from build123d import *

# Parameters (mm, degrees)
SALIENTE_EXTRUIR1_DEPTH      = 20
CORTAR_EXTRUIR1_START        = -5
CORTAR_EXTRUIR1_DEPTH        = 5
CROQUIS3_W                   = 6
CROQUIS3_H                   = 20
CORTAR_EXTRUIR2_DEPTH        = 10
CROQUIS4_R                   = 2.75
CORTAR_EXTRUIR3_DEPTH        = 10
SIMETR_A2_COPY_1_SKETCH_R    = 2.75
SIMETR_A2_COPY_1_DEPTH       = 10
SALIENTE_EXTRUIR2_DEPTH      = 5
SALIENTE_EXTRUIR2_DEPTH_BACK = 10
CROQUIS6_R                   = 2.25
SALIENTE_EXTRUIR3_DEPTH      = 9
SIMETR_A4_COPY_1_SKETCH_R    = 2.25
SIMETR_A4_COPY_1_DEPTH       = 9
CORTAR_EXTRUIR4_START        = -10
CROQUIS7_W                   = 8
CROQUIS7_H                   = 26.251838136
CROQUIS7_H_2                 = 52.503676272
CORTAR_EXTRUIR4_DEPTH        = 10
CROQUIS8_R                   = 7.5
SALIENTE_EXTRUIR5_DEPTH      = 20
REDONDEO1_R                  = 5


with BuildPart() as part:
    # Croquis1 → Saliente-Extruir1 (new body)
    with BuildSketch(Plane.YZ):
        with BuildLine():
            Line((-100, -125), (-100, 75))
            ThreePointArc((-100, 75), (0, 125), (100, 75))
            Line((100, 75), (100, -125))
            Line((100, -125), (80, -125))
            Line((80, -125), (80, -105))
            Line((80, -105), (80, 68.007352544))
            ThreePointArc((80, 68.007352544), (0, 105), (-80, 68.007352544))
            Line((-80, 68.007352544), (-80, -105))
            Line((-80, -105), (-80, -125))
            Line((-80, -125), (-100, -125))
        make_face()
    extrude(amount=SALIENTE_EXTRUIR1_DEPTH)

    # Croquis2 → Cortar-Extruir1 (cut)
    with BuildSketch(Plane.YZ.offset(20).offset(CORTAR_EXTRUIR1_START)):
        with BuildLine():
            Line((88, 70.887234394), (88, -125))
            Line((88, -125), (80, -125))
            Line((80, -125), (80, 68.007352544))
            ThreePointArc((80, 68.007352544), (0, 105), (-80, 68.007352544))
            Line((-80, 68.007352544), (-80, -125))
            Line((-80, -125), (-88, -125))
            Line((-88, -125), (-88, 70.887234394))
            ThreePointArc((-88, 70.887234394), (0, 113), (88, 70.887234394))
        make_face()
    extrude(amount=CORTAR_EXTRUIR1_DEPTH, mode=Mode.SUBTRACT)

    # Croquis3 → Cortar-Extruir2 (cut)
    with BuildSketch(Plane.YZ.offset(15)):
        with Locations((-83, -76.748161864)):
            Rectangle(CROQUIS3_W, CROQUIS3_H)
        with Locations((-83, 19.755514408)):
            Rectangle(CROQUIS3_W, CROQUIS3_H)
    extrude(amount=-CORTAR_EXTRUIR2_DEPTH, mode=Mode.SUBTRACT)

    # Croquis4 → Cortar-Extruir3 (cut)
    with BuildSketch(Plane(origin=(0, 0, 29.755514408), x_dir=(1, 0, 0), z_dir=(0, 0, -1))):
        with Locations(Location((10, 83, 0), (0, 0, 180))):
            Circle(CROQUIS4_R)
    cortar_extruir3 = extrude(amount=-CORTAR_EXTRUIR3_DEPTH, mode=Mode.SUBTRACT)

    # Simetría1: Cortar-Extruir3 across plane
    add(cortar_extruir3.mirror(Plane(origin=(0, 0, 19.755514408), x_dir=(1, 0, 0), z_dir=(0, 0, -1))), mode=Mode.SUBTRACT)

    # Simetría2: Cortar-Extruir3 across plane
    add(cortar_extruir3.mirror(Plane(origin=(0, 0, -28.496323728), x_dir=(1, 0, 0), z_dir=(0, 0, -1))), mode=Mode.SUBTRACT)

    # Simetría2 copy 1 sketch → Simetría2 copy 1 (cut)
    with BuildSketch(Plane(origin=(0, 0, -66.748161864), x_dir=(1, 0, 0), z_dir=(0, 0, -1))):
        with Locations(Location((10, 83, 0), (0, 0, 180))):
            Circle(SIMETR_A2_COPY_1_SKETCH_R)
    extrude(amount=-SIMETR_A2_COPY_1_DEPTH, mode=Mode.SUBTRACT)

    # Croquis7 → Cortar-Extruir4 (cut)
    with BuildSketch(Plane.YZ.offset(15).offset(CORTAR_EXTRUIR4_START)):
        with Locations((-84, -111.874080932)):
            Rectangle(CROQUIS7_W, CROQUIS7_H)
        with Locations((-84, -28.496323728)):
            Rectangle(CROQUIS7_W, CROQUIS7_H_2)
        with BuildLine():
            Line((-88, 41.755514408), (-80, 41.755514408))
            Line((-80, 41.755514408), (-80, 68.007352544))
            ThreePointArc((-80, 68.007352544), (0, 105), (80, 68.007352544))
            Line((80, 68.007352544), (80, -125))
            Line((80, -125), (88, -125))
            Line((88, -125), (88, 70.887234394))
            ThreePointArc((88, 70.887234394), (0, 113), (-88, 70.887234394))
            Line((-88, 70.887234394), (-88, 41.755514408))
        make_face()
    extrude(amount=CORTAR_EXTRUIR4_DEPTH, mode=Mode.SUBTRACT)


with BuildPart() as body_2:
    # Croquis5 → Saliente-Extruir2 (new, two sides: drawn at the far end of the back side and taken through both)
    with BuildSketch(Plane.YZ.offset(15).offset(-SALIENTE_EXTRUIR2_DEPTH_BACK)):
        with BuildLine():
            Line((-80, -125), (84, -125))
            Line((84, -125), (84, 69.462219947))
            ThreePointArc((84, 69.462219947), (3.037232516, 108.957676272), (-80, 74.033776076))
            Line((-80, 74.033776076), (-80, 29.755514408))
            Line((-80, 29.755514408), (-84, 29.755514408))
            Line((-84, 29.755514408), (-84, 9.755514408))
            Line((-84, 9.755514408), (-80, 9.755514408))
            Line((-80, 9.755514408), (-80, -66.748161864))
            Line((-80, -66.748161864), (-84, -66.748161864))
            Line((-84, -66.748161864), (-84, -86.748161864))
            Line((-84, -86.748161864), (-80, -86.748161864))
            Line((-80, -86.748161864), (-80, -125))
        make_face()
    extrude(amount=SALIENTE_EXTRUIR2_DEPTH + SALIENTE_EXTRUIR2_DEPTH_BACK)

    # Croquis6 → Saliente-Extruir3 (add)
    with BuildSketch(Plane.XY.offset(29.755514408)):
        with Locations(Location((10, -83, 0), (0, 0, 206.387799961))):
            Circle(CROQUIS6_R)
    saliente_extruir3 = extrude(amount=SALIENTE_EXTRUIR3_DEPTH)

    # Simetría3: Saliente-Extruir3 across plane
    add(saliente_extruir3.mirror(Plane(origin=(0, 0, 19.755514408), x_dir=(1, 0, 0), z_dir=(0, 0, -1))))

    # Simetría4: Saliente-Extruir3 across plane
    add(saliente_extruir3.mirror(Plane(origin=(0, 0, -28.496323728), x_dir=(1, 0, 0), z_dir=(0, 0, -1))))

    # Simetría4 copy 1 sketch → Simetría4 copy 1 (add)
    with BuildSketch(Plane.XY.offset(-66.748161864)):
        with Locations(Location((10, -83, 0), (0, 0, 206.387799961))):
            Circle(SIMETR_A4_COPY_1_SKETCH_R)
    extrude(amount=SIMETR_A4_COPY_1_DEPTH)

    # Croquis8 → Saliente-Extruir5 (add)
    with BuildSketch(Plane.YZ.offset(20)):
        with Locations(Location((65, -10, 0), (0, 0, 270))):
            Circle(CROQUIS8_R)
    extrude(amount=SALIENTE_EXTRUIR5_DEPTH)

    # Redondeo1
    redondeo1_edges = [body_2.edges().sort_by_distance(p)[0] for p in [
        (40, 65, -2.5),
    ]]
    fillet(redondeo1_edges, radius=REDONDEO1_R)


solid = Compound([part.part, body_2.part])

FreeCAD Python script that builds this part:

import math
import FreeCAD as App
import Part
import Sketcher

V = App.Vector
Q = App.Units.Quantity


def edges_at(feature, points):
    """Names of the edges that pass closest to the given points."""
    edges = feature.Shape.Edges
    near = lambda p: min(range(len(edges)), key=lambda i: edges[i].distToShape(Part.Vertex(*p))[0])
    return sorted({f"Edge{near(p) + 1}" for p in points})

doc = App.newDocument("Part")
body = doc.addObject("PartDesign::Body", "Body")

sketch1 = body.newObject("Sketcher::SketchObject", "Sketch")
sketch1.AttachmentSupport = (doc.getObject("YZ_Plane"), [""])
sketch1.MapMode = "FlatFace"
sketch1.addGeometry([
    Part.LineSegment(V(-100, 75, 0), V(-100, -125, 0)),
    Part.LineSegment(V(-100, -125, 0), V(-80, -125, 0)),
    Part.LineSegment(V(-80, -125, 0), V(-80, 68, 0)),
    Part.ArcOfCircle(Part.Circle(V(0, 0, 0), V(0, 0, 1), 105), math.radians(40), math.radians(140)),
    Part.LineSegment(V(80, 68, 0), V(80, -125, 0)),
    Part.LineSegment(V(80, -125, 0), V(100, -125, 0)),
    Part.LineSegment(V(100, -125, 0), V(100, 75, 0)),
    Part.ArcOfCircle(Part.Circle(V(0, 0, 0), V(0, 0, 1), 125), math.radians(37), math.radians(143)),
], False)
sketch1.addConstraint([
    Sketcher.Constraint("Coincident", 0, 2, 1, 1),
    Sketcher.Constraint("Coincident", 1, 2, 2, 1),
    Sketcher.Constraint("Coincident", 2, 2, 3, 2),
    Sketcher.Constraint("Coincident", 3, 1, 4, 1),
    Sketcher.Constraint("Coincident", 4, 2, 5, 1),
    Sketcher.Constraint("Coincident", 5, 2, 6, 1),
    Sketcher.Constraint("Coincident", 6, 2, 7, 1),
    Sketcher.Constraint("Coincident", 7, 2, 0, 1),
    Sketcher.Constraint("Vertical", 0),
    Sketcher.Constraint("Horizontal", 1),
    Sketcher.Constraint("Vertical", 2),
    Sketcher.Constraint("Vertical", 4),
    Sketcher.Constraint("Horizontal", 5),
    Sketcher.Constraint("Vertical", 6),
    Sketcher.Constraint("Coincident", 3, 3, -1, 1),
    Sketcher.Constraint("Coincident", 7, 3, -1, 1),
    Sketcher.Constraint("Symmetric", 1, 2, 4, 2, -2),
    Sketcher.Constraint("Horizontal", 6, 2, 7, 2),
    Sketcher.Constraint("Radius", 3, Q("105 mm")),
    Sketcher.Constraint("Radius", 7, Q("125 mm")),
    Sketcher.Constraint("DistanceX", 1, 1, 1, 2, Q("20 mm")),
    Sketcher.Constraint("DistanceY", 0, 2, 0, 1, Q("200 mm")),
    Sketcher.Constraint("DistanceX", 0, 2, -1, 1, Q("100 mm")),
])
pad1 = body.newObject("PartDesign::Pad", "Pad")
pad1.Profile = sketch1
pad1.Length = 20

sketch2 = body.newObject("Sketcher::SketchObject", "Sketch001")
sketch2.AttachmentSupport = (doc.getObject("YZ_Plane"), [""])
sketch2.MapMode = "FlatFace"
sketch2.AttachmentOffset = App.Placement(V(0, 0, 15), App.Rotation())
sketch2.addGeometry([
    Part.LineSegment(V(88, -125, 0), V(88, 71, 0)),
    Part.ArcOfCircle(Part.Circle(V(0, 0, 0), V(0, 0, 1), 113), math.radians(39), math.radians(141)),
    Part.LineSegment(V(-88, 71, 0), V(-88, -125, 0)),
    Part.LineSegment(V(-88, -125, 0), V(-80, -125, 0)),
    Part.LineSegment(V(-80, -125, 0), V(-80, 68, 0)),
    Part.ArcOfCircle(Part.Circle(V(0, 0, 0), V(0, 0, 1), 105), math.radians(40), math.radians(140)),
    Part.LineSegment(V(80, 68, 0), V(80, -125, 0)),
    Part.LineSegment(V(80, -125, 0), V(88, -125, 0)),
], False)
sketch2.addConstraint([
    Sketcher.Constraint("Coincident", 0, 2, 1, 1),
    Sketcher.Constraint("Coincident", 1, 2, 2, 1),
    Sketcher.Constraint("Coincident", 2, 2, 3, 1),
    Sketcher.Constraint("Coincident", 3, 2, 4, 1),
    Sketcher.Constraint("Coincident", 4, 2, 5, 2),
    Sketcher.Constraint("Coincident", 5, 1, 6, 1),
    Sketcher.Constraint("Coincident", 6, 2, 7, 1),
    Sketcher.Constraint("Coincident", 7, 2, 0, 1),
    Sketcher.Constraint("Vertical", 0),
    Sketcher.Constraint("Vertical", 2),
    Sketcher.Constraint("Horizontal", 3),
    Sketcher.Constraint("Vertical", 4),
    Sketcher.Constraint("Vertical", 6),
    Sketcher.Constraint("Horizontal", 7),
    Sketcher.Constraint("Coincident", 1, 3, -1, 1),
    Sketcher.Constraint("Coincident", 5, 3, -1, 1),
    Sketcher.Constraint("Symmetric", 3, 2, 6, 2, -2),
    Sketcher.Constraint("Horizontal", 0, 2, 1, 2),
    Sketcher.Constraint("Radius", 1, Q("113 mm")),
    Sketcher.Constraint("Radius", 5, Q("105 mm")),
    Sketcher.Constraint("DistanceX", 3, 1, 3, 2, Q("8 mm")),
    Sketcher.Constraint("DistanceX", -1, 1, 0, 2, Q("88 mm")),
    Sketcher.Constraint("DistanceY", 2, 2, -1, 1, Q("125 mm")),
])
pocket1 = body.newObject("PartDesign::Pocket", "Pocket")
pocket1.Profile = sketch2
pocket1.Length = 5
pocket1.Reversed = True

sketch3 = body.newObject("Sketcher::SketchObject", "Sketch002")
sketch3.AttachmentSupport = (doc.getObject("YZ_Plane"), [""])
sketch3.MapMode = "FlatFace"
sketch3.AttachmentOffset = App.Placement(V(0, 0, 15), App.Rotation())
sketch3.addGeometry([
    Part.LineSegment(V(-86, -67, 0), V(-86, -87, 0)),
    Part.LineSegment(V(-86, -87, 0), V(-80, -87, 0)),
    Part.LineSegment(V(-80, -87, 0), V(-80, -67, 0)),
    Part.LineSegment(V(-80, -67, 0), V(-86, -67, 0)),
    Part.LineSegment(V(-86, 30, 0), V(-86, 10, 0)),
    Part.LineSegment(V(-86, 10, 0), V(-80, 10, 0)),
    Part.LineSegment(V(-80, 10, 0), V(-80, 30, 0)),
    Part.LineSegment(V(-80, 30, 0), V(-86, 30, 0)),
], False)
sketch3.addConstraint([
    Sketcher.Constraint("Coincident", 0, 2, 1, 1),
    Sketcher.Constraint("Coincident", 1, 2, 2, 1),
    Sketcher.Constraint("Coincident", 2, 2, 3, 1),
    Sketcher.Constraint("Coincident", 3, 2, 0, 1),
    Sketcher.Constraint("Coincident", 4, 2, 5, 1),
    Sketcher.Constraint("Coincident", 5, 2, 6, 1),
    Sketcher.Constraint("Coincident", 6, 2, 7, 1),
    Sketcher.Constraint("Coincident", 7, 2, 4, 1),
    Sketcher.Constraint("Vertical", 0),
    Sketcher.Constraint("Horizontal", 1),
    Sketcher.Constraint("Vertical", 2),
    Sketcher.Constraint("Horizontal", 3),
    Sketcher.Constraint("Vertical", 4),
    Sketcher.Constraint("Horizontal", 5),
    Sketcher.Constraint("Vertical", 6),
    Sketcher.Constraint("Horizontal", 7),
    Sketcher.Constraint("Vertical", 3, 2, 4, 2),
    Sketcher.Constraint("Vertical", 2, 2, 5, 2),
    Sketcher.Constraint("Equal", 2, 4),
    Sketcher.Constraint("DistanceX", 1, 1, 1, 2, Q("6 mm")),
    Sketcher.Constraint("DistanceY", 0, 2, 0, 1, Q("20 mm")),
    Sketcher.Constraint("DistanceX", 0, 2, -1, 1, Q("86 mm")),
    Sketcher.Constraint("DistanceY", 0, 2, -1, 1, Q("86.748162 mm")),
    Sketcher.Constraint("DistanceY", -1, 1, 4, 2, Q("9.755514 mm")),
])
pocket2 = body.newObject("PartDesign::Pocket", "Pocket001")
pocket2.Profile = sketch3
pocket2.Length = 10

sketch4 = body.newObject("Sketcher::SketchObject", "Sketch003")
sketch4.AttachmentSupport = (doc.getObject("XY_Plane"), [""])
sketch4.MapMode = "FlatFace"
sketch4.AttachmentOffset = App.Placement(V(0, 0, 29.755514), App.Rotation())
sketch4.addGeometry(Part.Circle(V(10, -83, 0), V(0, 0, 1), 2.8), False)
sketch4.addConstraint([
    Sketcher.Constraint("Diameter", 0, Q("5.5 mm")),
    Sketcher.Constraint("DistanceX", -1, 1, 0, 3, Q("10 mm")),
    Sketcher.Constraint("DistanceY", 0, 3, -1, 1, Q("83 mm")),
])
pocket3 = body.newObject("PartDesign::Pocket", "Pocket002")
pocket3.Profile = sketch4
pocket3.Length = 10
pocket3.Reversed = True
doc.recompute()

datumplane = body.newObject("PartDesign::Plane", "DatumPlane")
datumplane.AttachmentSupport = (doc.getObject("XY_Plane"), [""])
datumplane.MapMode = "FlatFace"
datumplane.AttachmentOffset = App.Placement(V(0, 0, 19.755514), App.Rotation())
mirrored = body.newObject("PartDesign::Mirrored", "Mirrored")
mirrored.Originals = [pocket3]
mirrored.MirrorPlane = (datumplane, [""])
body.Tip = mirrored
doc.recompute()

datumplane2 = body.newObject("PartDesign::Plane", "DatumPlane001")
datumplane2.AttachmentSupport = (doc.getObject("XY_Plane"), [""])
datumplane2.MapMode = "FlatFace"
datumplane2.AttachmentOffset = App.Placement(V(0, 0, -28.496324), App.Rotation())
mirrored2 = body.newObject("PartDesign::Mirrored", "Mirrored001")
mirrored2.Originals = [pocket3]
mirrored2.MirrorPlane = (datumplane2, [""])
body.Tip = mirrored2

sketch5 = body.newObject("Sketcher::SketchObject", "Sketch004")
sketch5.AttachmentSupport = (doc.getObject("XY_Plane"), [""])
sketch5.MapMode = "FlatFace"
sketch5.AttachmentOffset = App.Placement(V(0, 0, -66.748162), App.Rotation())
sketch5.addGeometry(Part.Circle(V(10, -83, 0), V(0, 0, 1), 2.8), False)
sketch5.addConstraint([
    Sketcher.Constraint("Diameter", 0, Q("5.5 mm")),
    Sketcher.Constraint("DistanceX", -1, 1, 0, 3, Q("10 mm")),
    Sketcher.Constraint("DistanceY", 0, 3, -1, 1, Q("83 mm")),
])
pocket4 = body.newObject("PartDesign::Pocket", "Pocket003")
pocket4.Profile = sketch5
pocket4.Length = 10
pocket4.Reversed = True

sketch6 = body.newObject("Sketcher::SketchObject", "Sketch005")
sketch6.AttachmentSupport = (doc.getObject("YZ_Plane"), [""])
sketch6.MapMode = "FlatFace"
sketch6.AttachmentOffset = App.Placement(V(0, 0, 5), App.Rotation())
sketch6.addGeometry([
    Part.LineSegment(V(-88, -99, 0), V(-88, -125, 0)),
    Part.LineSegment(V(-88, -125, 0), V(-80, -125, 0)),
    Part.LineSegment(V(-80, -125, 0), V(-80, -99, 0)),
    Part.LineSegment(V(-80, -99, 0), V(-88, -99, 0)),
    Part.LineSegment(V(-88, -2, 0), V(-88, -55, 0)),
    Part.LineSegment(V(-88, -55, 0), V(-80, -55, 0)),
    Part.LineSegment(V(-80, -55, 0), V(-80, -2, 0)),
    Part.LineSegment(V(-80, -2, 0), V(-88, -2, 0)),
    Part.LineSegment(V(-88, 42, 0), V(-80, 42, 0)),
    Part.LineSegment(V(-80, 42, 0), V(-80, 68, 0)),
    Part.ArcOfCircle(Part.Circle(V(0, 0, 0), V(0, 0, 1), 105), math.radians(40), math.radians(140)),
    Part.LineSegment(V(80, 68, 0), V(80, -125, 0)),
    Part.LineSegment(V(80, -125, 0), V(88, -125, 0)),
    Part.LineSegment(V(88, -125, 0), V(88, 71, 0)),
    Part.ArcOfCircle(Part.Circle(V(0, 0, 0), V(0, 0, 1), 113), math.radians(39), math.radians(141)),
    Part.LineSegment(V(-88, 71, 0), V(-88, 42, 0)),
], False)
sketch6.addConstraint([
    Sketcher.Constraint("Coincident", 0, 2, 1, 1),
    Sketcher.Constraint("Coincident", 1, 2, 2, 1),
    Sketcher.Constraint("Coincident", 2, 2, 3, 1),
    Sketcher.Constraint("Coincident", 3, 2, 0, 1),
    Sketcher.Constraint("Coincident", 4, 2, 5, 1),
    Sketcher.Constraint("Coincident", 5, 2, 6, 1),
    Sketcher.Constraint("Coincident", 6, 2, 7, 1),
    Sketcher.Constraint("Coincident", 7, 2, 4, 1),
    Sketcher.Constraint("Coincident", 8, 2, 9, 1),
    Sketcher.Constraint("Coincident", 9, 2, 10, 2),
    Sketcher.Constraint("Coincident", 10, 1, 11, 1),
    Sketcher.Constraint("Coincident", 11, 2, 12, 1),
    Sketcher.Constraint("Coincident", 12, 2, 13, 1),
    Sketcher.Constraint("Coincident", 13, 2, 14, 1),
    Sketcher.Constraint("Coincident", 14, 2, 15, 1),
    Sketcher.Constraint("Coincident", 15, 2, 8, 1),
    Sketcher.Constraint("Vertical", 0),
    Sketcher.Constraint("Horizontal", 1),
    Sketcher.Constraint("Vertical", 2),
    Sketcher.Constraint("Horizontal", 3),
    Sketcher.Constraint("Vertical", 4),
    Sketcher.Constraint("Horizontal", 5),
    Sketcher.Constraint("Vertical", 6),
    Sketcher.Constraint("Horizontal", 7),
    Sketcher.Constraint("Horizontal", 8),
    Sketcher.Constraint("Vertical", 9),
    Sketcher.Constraint("Vertical", 11),
    Sketcher.Constraint("Horizontal", 12),
    Sketcher.Constraint("Vertical", 13),
    Sketcher.Constraint("Vertical", 15),
    Sketcher.Constraint("Coincident", 10, 3, -1, 1),
    Sketcher.Constraint("Coincident", 14, 3, -1, 1),
    Sketcher.Constraint("Symmetric", 1, 2, 11, 2, -2),
    Sketcher.Constraint("Horizontal", 9, 2, 10, 1),
    Sketcher.Constraint("Horizontal", 13, 2, 14, 2),
    Sketcher.Constraint("Vertical", 3, 2, 4, 2),
    Sketcher.Constraint("Vertical", 2, 2, 5, 2),
    Sketcher.Constraint("Vertical", 7, 2, 14, 2),
    Sketcher.Constraint("Equal", 2, 9),
    Sketcher.Constraint("Radius", 10, Q("105 mm")),
    Sketcher.Constraint("Radius", 14, Q("113 mm")),
    Sketcher.Constraint("DistanceX", 1, 1, 1, 2, Q("8 mm")),
    Sketcher.Constraint("DistanceX", 0, 2, -1, 1, Q("88 mm")),
    Sketcher.Constraint("DistanceY", 0, 2, -1, 1, Q("125 mm")),
    Sketcher.Constraint("DistanceY", 3, 2, 4, 2, Q("44 mm")),
    Sketcher.Constraint("DistanceY", 6, 2, 8, 2, Q("44 mm")),
    Sketcher.Constraint("DistanceY", 0, 2, 0, 1, Q("26.251838 mm")),
])
pocket5 = body.newObject("PartDesign::Pocket", "Pocket004")
pocket5.Profile = sketch6
pocket5.Length = 10
pocket5.Reversed = True
body2 = doc.addObject("PartDesign::Body", "Body001")

sketch7 = body2.newObject("Sketcher::SketchObject", "Sketch006")
sketch7.AttachmentSupport = (doc.getObject("YZ_Plane001"), [""])
sketch7.MapMode = "FlatFace"
sketch7.AttachmentOffset = App.Placement(V(0, 0, 15), App.Rotation())
sketch7.addGeometry([
    Part.LineSegment(V(-80, -125, 0), V(84, -125, 0)),
    Part.LineSegment(V(84, -125, 0), V(84, 69.5, 0)),
    Part.ArcOfCircle(Part.Circle(V(0, 0, 0), V(0, 0, 1), 109), math.radians(40), math.radians(137)),
    Part.LineSegment(V(-80, 74, 0), V(-80, 29.8, 0)),
    Part.LineSegment(V(-80, 29.8, 0), V(-84, 29.8, 0)),
    Part.LineSegment(V(-84, 29.8, 0), V(-84, 9.8, 0)),
    Part.LineSegment(V(-84, 9.8, 0), V(-80, 9.8, 0)),
    Part.LineSegment(V(-80, 9.8, 0), V(-80, -66.7, 0)),
    Part.LineSegment(V(-80, -66.7, 0), V(-84, -66.7, 0)),
    Part.LineSegment(V(-84, -66.7, 0), V(-84, -86.7, 0)),
    Part.LineSegment(V(-84, -86.7, 0), V(-80, -86.7, 0)),
    Part.LineSegment(V(-80, -86.7, 0), V(-80, -125, 0)),
], False)
sketch7.addConstraint([
    Sketcher.Constraint("Coincident", 0, 2, 1, 1),
    Sketcher.Constraint("Coincident", 1, 2, 2, 1),
    Sketcher.Constraint("Coincident", 2, 2, 3, 1),
    Sketcher.Constraint("Coincident", 3, 2, 4, 1),
    Sketcher.Constraint("Coincident", 4, 2, 5, 1),
    Sketcher.Constraint("Coincident", 5, 2, 6, 1),
    Sketcher.Constraint("Coincident", 6, 2, 7, 1),
    Sketcher.Constraint("Coincident", 7, 2, 8, 1),
    Sketcher.Constraint("Coincident", 8, 2, 9, 1),
    Sketcher.Constraint("Coincident", 9, 2, 10, 1),
    Sketcher.Constraint("Coincident", 10, 2, 11, 1),
    Sketcher.Constraint("Coincident", 11, 2, 0, 1),
    Sketcher.Constraint("Horizontal", 0),
    Sketcher.Constraint("Vertical", 1),
    Sketcher.Constraint("Vertical", 3),
    Sketcher.Constraint("Horizontal", 4),
    Sketcher.Constraint("Vertical", 5),
    Sketcher.Constraint("Horizontal", 6),
    Sketcher.Constraint("Vertical", 7),
    Sketcher.Constraint("Horizontal", 8),
    Sketcher.Constraint("Vertical", 9),
    Sketcher.Constraint("Horizontal", 10),
    Sketcher.Constraint("Vertical", 11),
    Sketcher.Constraint("Coincident", 2, 3, -1, 1),
    Sketcher.Constraint("Vertical", 3, 2, 6, 2),
    Sketcher.Constraint("Vertical", 5, 2, 8, 2),
    Sketcher.Constraint("Vertical", 7, 2, 10, 2),
    Sketcher.Constraint("Equal", 5, 9),
    Sketcher.Constraint("Radius", 2, Q("109 mm")),
    Sketcher.Constraint("DistanceX", 0, 1, 0, 2, Q("164 mm")),
    Sketcher.Constraint("DistanceX", 4, 2, 4, 1, Q("4 mm")),
    Sketcher.Constraint("DistanceY", 5, 2, 5, 1, Q("20 mm")),
    Sketcher.Constraint("DistanceX", -1, 1, 0, 2, Q("84 mm")),
    Sketcher.Constraint("DistanceY", 0, 2, -1, 1, Q("125 mm")),
    Sketcher.Constraint("DistanceY", 3, 2, 3, 1, Q("44.278262 mm")),
    Sketcher.Constraint("DistanceY", 11, 2, 11, 1, Q("38.251838 mm")),
])
pad2 = body2.newObject("PartDesign::Pad", "Pad001")
pad2.Profile = sketch7
pad2.Type = "TwoLengths"
pad2.Length = 5
pad2.Length2 = 10

sketch8 = body2.newObject("Sketcher::SketchObject", "Sketch007")
sketch8.AttachmentSupport = (doc.getObject("XY_Plane001"), [""])
sketch8.MapMode = "FlatFace"
sketch8.AttachmentOffset = App.Placement(V(0, 0, 29.755514), App.Rotation())
sketch8.addGeometry(Part.Circle(V(10, -83, 0), V(0, 0, 1), 2.2), False)
sketch8.addConstraint([
    Sketcher.Constraint("Diameter", 0, Q("4.5 mm")),
    Sketcher.Constraint("DistanceX", -1, 1, 0, 3, Q("10 mm")),
    Sketcher.Constraint("DistanceY", 0, 3, -1, 1, Q("83 mm")),
])
pad3 = body2.newObject("PartDesign::Pad", "Pad002")
pad3.Profile = sketch8
pad3.Length = 9
doc.recompute()

datumplane3 = body2.newObject("PartDesign::Plane", "DatumPlane002")
datumplane3.AttachmentSupport = (doc.getObject("XY_Plane001"), [""])
datumplane3.MapMode = "FlatFace"
datumplane3.AttachmentOffset = App.Placement(V(0, 0, 19.755514), App.Rotation())
mirrored3 = body2.newObject("PartDesign::Mirrored", "Mirrored002")
mirrored3.Originals = [pad3]
mirrored3.MirrorPlane = (datumplane3, [""])
body2.Tip = mirrored3
doc.recompute()

datumplane4 = body2.newObject("PartDesign::Plane", "DatumPlane003")
datumplane4.AttachmentSupport = (doc.getObject("XY_Plane001"), [""])
datumplane4.MapMode = "FlatFace"
datumplane4.AttachmentOffset = App.Placement(V(0, 0, -28.496324), App.Rotation())
mirrored4 = body2.newObject("PartDesign::Mirrored", "Mirrored003")
mirrored4.Originals = [pad3]
mirrored4.MirrorPlane = (datumplane4, [""])
body2.Tip = mirrored4

sketch9 = body2.newObject("Sketcher::SketchObject", "Sketch008")
sketch9.AttachmentSupport = (doc.getObject("XY_Plane001"), [""])
sketch9.MapMode = "FlatFace"
sketch9.AttachmentOffset = App.Placement(V(0, 0, -66.748162), App.Rotation())
sketch9.addGeometry(Part.Circle(V(10, -83, 0), V(0, 0, 1), 2.2), False)
sketch9.addConstraint([
    Sketcher.Constraint("Diameter", 0, Q("4.5 mm")),
    Sketcher.Constraint("DistanceX", -1, 1, 0, 3, Q("10 mm")),
    Sketcher.Constraint("DistanceY", 0, 3, -1, 1, Q("83 mm")),
])
pad4 = body2.newObject("PartDesign::Pad", "Pad003")
pad4.Profile = sketch9
pad4.Length = 9

sketch10 = body2.newObject("Sketcher::SketchObject", "Sketch009")
sketch10.AttachmentSupport = (doc.getObject("YZ_Plane001"), [""])
sketch10.MapMode = "FlatFace"
sketch10.AttachmentOffset = App.Placement(V(0, 0, 20), App.Rotation())
sketch10.addGeometry(Part.Circle(V(65, -10, 0), V(0, 0, 1), 8), False)
sketch10.addConstraint([
    Sketcher.Constraint("Diameter", 0, Q("15 mm")),
    Sketcher.Constraint("DistanceX", -1, 1, 0, 3, Q("65 mm")),
    Sketcher.Constraint("DistanceY", 0, 3, -1, 1, Q("10 mm")),
])
pad5 = body2.newObject("PartDesign::Pad", "Pad004")
pad5.Profile = sketch10
pad5.Length = 20
doc.recompute()

fillet = body2.newObject("PartDesign::Fillet", "Fillet")
fillet.Base = (pad5, edges_at(pad5, [(40, 65, -2.5)]))
fillet.Radius = 5

doc.recompute()
